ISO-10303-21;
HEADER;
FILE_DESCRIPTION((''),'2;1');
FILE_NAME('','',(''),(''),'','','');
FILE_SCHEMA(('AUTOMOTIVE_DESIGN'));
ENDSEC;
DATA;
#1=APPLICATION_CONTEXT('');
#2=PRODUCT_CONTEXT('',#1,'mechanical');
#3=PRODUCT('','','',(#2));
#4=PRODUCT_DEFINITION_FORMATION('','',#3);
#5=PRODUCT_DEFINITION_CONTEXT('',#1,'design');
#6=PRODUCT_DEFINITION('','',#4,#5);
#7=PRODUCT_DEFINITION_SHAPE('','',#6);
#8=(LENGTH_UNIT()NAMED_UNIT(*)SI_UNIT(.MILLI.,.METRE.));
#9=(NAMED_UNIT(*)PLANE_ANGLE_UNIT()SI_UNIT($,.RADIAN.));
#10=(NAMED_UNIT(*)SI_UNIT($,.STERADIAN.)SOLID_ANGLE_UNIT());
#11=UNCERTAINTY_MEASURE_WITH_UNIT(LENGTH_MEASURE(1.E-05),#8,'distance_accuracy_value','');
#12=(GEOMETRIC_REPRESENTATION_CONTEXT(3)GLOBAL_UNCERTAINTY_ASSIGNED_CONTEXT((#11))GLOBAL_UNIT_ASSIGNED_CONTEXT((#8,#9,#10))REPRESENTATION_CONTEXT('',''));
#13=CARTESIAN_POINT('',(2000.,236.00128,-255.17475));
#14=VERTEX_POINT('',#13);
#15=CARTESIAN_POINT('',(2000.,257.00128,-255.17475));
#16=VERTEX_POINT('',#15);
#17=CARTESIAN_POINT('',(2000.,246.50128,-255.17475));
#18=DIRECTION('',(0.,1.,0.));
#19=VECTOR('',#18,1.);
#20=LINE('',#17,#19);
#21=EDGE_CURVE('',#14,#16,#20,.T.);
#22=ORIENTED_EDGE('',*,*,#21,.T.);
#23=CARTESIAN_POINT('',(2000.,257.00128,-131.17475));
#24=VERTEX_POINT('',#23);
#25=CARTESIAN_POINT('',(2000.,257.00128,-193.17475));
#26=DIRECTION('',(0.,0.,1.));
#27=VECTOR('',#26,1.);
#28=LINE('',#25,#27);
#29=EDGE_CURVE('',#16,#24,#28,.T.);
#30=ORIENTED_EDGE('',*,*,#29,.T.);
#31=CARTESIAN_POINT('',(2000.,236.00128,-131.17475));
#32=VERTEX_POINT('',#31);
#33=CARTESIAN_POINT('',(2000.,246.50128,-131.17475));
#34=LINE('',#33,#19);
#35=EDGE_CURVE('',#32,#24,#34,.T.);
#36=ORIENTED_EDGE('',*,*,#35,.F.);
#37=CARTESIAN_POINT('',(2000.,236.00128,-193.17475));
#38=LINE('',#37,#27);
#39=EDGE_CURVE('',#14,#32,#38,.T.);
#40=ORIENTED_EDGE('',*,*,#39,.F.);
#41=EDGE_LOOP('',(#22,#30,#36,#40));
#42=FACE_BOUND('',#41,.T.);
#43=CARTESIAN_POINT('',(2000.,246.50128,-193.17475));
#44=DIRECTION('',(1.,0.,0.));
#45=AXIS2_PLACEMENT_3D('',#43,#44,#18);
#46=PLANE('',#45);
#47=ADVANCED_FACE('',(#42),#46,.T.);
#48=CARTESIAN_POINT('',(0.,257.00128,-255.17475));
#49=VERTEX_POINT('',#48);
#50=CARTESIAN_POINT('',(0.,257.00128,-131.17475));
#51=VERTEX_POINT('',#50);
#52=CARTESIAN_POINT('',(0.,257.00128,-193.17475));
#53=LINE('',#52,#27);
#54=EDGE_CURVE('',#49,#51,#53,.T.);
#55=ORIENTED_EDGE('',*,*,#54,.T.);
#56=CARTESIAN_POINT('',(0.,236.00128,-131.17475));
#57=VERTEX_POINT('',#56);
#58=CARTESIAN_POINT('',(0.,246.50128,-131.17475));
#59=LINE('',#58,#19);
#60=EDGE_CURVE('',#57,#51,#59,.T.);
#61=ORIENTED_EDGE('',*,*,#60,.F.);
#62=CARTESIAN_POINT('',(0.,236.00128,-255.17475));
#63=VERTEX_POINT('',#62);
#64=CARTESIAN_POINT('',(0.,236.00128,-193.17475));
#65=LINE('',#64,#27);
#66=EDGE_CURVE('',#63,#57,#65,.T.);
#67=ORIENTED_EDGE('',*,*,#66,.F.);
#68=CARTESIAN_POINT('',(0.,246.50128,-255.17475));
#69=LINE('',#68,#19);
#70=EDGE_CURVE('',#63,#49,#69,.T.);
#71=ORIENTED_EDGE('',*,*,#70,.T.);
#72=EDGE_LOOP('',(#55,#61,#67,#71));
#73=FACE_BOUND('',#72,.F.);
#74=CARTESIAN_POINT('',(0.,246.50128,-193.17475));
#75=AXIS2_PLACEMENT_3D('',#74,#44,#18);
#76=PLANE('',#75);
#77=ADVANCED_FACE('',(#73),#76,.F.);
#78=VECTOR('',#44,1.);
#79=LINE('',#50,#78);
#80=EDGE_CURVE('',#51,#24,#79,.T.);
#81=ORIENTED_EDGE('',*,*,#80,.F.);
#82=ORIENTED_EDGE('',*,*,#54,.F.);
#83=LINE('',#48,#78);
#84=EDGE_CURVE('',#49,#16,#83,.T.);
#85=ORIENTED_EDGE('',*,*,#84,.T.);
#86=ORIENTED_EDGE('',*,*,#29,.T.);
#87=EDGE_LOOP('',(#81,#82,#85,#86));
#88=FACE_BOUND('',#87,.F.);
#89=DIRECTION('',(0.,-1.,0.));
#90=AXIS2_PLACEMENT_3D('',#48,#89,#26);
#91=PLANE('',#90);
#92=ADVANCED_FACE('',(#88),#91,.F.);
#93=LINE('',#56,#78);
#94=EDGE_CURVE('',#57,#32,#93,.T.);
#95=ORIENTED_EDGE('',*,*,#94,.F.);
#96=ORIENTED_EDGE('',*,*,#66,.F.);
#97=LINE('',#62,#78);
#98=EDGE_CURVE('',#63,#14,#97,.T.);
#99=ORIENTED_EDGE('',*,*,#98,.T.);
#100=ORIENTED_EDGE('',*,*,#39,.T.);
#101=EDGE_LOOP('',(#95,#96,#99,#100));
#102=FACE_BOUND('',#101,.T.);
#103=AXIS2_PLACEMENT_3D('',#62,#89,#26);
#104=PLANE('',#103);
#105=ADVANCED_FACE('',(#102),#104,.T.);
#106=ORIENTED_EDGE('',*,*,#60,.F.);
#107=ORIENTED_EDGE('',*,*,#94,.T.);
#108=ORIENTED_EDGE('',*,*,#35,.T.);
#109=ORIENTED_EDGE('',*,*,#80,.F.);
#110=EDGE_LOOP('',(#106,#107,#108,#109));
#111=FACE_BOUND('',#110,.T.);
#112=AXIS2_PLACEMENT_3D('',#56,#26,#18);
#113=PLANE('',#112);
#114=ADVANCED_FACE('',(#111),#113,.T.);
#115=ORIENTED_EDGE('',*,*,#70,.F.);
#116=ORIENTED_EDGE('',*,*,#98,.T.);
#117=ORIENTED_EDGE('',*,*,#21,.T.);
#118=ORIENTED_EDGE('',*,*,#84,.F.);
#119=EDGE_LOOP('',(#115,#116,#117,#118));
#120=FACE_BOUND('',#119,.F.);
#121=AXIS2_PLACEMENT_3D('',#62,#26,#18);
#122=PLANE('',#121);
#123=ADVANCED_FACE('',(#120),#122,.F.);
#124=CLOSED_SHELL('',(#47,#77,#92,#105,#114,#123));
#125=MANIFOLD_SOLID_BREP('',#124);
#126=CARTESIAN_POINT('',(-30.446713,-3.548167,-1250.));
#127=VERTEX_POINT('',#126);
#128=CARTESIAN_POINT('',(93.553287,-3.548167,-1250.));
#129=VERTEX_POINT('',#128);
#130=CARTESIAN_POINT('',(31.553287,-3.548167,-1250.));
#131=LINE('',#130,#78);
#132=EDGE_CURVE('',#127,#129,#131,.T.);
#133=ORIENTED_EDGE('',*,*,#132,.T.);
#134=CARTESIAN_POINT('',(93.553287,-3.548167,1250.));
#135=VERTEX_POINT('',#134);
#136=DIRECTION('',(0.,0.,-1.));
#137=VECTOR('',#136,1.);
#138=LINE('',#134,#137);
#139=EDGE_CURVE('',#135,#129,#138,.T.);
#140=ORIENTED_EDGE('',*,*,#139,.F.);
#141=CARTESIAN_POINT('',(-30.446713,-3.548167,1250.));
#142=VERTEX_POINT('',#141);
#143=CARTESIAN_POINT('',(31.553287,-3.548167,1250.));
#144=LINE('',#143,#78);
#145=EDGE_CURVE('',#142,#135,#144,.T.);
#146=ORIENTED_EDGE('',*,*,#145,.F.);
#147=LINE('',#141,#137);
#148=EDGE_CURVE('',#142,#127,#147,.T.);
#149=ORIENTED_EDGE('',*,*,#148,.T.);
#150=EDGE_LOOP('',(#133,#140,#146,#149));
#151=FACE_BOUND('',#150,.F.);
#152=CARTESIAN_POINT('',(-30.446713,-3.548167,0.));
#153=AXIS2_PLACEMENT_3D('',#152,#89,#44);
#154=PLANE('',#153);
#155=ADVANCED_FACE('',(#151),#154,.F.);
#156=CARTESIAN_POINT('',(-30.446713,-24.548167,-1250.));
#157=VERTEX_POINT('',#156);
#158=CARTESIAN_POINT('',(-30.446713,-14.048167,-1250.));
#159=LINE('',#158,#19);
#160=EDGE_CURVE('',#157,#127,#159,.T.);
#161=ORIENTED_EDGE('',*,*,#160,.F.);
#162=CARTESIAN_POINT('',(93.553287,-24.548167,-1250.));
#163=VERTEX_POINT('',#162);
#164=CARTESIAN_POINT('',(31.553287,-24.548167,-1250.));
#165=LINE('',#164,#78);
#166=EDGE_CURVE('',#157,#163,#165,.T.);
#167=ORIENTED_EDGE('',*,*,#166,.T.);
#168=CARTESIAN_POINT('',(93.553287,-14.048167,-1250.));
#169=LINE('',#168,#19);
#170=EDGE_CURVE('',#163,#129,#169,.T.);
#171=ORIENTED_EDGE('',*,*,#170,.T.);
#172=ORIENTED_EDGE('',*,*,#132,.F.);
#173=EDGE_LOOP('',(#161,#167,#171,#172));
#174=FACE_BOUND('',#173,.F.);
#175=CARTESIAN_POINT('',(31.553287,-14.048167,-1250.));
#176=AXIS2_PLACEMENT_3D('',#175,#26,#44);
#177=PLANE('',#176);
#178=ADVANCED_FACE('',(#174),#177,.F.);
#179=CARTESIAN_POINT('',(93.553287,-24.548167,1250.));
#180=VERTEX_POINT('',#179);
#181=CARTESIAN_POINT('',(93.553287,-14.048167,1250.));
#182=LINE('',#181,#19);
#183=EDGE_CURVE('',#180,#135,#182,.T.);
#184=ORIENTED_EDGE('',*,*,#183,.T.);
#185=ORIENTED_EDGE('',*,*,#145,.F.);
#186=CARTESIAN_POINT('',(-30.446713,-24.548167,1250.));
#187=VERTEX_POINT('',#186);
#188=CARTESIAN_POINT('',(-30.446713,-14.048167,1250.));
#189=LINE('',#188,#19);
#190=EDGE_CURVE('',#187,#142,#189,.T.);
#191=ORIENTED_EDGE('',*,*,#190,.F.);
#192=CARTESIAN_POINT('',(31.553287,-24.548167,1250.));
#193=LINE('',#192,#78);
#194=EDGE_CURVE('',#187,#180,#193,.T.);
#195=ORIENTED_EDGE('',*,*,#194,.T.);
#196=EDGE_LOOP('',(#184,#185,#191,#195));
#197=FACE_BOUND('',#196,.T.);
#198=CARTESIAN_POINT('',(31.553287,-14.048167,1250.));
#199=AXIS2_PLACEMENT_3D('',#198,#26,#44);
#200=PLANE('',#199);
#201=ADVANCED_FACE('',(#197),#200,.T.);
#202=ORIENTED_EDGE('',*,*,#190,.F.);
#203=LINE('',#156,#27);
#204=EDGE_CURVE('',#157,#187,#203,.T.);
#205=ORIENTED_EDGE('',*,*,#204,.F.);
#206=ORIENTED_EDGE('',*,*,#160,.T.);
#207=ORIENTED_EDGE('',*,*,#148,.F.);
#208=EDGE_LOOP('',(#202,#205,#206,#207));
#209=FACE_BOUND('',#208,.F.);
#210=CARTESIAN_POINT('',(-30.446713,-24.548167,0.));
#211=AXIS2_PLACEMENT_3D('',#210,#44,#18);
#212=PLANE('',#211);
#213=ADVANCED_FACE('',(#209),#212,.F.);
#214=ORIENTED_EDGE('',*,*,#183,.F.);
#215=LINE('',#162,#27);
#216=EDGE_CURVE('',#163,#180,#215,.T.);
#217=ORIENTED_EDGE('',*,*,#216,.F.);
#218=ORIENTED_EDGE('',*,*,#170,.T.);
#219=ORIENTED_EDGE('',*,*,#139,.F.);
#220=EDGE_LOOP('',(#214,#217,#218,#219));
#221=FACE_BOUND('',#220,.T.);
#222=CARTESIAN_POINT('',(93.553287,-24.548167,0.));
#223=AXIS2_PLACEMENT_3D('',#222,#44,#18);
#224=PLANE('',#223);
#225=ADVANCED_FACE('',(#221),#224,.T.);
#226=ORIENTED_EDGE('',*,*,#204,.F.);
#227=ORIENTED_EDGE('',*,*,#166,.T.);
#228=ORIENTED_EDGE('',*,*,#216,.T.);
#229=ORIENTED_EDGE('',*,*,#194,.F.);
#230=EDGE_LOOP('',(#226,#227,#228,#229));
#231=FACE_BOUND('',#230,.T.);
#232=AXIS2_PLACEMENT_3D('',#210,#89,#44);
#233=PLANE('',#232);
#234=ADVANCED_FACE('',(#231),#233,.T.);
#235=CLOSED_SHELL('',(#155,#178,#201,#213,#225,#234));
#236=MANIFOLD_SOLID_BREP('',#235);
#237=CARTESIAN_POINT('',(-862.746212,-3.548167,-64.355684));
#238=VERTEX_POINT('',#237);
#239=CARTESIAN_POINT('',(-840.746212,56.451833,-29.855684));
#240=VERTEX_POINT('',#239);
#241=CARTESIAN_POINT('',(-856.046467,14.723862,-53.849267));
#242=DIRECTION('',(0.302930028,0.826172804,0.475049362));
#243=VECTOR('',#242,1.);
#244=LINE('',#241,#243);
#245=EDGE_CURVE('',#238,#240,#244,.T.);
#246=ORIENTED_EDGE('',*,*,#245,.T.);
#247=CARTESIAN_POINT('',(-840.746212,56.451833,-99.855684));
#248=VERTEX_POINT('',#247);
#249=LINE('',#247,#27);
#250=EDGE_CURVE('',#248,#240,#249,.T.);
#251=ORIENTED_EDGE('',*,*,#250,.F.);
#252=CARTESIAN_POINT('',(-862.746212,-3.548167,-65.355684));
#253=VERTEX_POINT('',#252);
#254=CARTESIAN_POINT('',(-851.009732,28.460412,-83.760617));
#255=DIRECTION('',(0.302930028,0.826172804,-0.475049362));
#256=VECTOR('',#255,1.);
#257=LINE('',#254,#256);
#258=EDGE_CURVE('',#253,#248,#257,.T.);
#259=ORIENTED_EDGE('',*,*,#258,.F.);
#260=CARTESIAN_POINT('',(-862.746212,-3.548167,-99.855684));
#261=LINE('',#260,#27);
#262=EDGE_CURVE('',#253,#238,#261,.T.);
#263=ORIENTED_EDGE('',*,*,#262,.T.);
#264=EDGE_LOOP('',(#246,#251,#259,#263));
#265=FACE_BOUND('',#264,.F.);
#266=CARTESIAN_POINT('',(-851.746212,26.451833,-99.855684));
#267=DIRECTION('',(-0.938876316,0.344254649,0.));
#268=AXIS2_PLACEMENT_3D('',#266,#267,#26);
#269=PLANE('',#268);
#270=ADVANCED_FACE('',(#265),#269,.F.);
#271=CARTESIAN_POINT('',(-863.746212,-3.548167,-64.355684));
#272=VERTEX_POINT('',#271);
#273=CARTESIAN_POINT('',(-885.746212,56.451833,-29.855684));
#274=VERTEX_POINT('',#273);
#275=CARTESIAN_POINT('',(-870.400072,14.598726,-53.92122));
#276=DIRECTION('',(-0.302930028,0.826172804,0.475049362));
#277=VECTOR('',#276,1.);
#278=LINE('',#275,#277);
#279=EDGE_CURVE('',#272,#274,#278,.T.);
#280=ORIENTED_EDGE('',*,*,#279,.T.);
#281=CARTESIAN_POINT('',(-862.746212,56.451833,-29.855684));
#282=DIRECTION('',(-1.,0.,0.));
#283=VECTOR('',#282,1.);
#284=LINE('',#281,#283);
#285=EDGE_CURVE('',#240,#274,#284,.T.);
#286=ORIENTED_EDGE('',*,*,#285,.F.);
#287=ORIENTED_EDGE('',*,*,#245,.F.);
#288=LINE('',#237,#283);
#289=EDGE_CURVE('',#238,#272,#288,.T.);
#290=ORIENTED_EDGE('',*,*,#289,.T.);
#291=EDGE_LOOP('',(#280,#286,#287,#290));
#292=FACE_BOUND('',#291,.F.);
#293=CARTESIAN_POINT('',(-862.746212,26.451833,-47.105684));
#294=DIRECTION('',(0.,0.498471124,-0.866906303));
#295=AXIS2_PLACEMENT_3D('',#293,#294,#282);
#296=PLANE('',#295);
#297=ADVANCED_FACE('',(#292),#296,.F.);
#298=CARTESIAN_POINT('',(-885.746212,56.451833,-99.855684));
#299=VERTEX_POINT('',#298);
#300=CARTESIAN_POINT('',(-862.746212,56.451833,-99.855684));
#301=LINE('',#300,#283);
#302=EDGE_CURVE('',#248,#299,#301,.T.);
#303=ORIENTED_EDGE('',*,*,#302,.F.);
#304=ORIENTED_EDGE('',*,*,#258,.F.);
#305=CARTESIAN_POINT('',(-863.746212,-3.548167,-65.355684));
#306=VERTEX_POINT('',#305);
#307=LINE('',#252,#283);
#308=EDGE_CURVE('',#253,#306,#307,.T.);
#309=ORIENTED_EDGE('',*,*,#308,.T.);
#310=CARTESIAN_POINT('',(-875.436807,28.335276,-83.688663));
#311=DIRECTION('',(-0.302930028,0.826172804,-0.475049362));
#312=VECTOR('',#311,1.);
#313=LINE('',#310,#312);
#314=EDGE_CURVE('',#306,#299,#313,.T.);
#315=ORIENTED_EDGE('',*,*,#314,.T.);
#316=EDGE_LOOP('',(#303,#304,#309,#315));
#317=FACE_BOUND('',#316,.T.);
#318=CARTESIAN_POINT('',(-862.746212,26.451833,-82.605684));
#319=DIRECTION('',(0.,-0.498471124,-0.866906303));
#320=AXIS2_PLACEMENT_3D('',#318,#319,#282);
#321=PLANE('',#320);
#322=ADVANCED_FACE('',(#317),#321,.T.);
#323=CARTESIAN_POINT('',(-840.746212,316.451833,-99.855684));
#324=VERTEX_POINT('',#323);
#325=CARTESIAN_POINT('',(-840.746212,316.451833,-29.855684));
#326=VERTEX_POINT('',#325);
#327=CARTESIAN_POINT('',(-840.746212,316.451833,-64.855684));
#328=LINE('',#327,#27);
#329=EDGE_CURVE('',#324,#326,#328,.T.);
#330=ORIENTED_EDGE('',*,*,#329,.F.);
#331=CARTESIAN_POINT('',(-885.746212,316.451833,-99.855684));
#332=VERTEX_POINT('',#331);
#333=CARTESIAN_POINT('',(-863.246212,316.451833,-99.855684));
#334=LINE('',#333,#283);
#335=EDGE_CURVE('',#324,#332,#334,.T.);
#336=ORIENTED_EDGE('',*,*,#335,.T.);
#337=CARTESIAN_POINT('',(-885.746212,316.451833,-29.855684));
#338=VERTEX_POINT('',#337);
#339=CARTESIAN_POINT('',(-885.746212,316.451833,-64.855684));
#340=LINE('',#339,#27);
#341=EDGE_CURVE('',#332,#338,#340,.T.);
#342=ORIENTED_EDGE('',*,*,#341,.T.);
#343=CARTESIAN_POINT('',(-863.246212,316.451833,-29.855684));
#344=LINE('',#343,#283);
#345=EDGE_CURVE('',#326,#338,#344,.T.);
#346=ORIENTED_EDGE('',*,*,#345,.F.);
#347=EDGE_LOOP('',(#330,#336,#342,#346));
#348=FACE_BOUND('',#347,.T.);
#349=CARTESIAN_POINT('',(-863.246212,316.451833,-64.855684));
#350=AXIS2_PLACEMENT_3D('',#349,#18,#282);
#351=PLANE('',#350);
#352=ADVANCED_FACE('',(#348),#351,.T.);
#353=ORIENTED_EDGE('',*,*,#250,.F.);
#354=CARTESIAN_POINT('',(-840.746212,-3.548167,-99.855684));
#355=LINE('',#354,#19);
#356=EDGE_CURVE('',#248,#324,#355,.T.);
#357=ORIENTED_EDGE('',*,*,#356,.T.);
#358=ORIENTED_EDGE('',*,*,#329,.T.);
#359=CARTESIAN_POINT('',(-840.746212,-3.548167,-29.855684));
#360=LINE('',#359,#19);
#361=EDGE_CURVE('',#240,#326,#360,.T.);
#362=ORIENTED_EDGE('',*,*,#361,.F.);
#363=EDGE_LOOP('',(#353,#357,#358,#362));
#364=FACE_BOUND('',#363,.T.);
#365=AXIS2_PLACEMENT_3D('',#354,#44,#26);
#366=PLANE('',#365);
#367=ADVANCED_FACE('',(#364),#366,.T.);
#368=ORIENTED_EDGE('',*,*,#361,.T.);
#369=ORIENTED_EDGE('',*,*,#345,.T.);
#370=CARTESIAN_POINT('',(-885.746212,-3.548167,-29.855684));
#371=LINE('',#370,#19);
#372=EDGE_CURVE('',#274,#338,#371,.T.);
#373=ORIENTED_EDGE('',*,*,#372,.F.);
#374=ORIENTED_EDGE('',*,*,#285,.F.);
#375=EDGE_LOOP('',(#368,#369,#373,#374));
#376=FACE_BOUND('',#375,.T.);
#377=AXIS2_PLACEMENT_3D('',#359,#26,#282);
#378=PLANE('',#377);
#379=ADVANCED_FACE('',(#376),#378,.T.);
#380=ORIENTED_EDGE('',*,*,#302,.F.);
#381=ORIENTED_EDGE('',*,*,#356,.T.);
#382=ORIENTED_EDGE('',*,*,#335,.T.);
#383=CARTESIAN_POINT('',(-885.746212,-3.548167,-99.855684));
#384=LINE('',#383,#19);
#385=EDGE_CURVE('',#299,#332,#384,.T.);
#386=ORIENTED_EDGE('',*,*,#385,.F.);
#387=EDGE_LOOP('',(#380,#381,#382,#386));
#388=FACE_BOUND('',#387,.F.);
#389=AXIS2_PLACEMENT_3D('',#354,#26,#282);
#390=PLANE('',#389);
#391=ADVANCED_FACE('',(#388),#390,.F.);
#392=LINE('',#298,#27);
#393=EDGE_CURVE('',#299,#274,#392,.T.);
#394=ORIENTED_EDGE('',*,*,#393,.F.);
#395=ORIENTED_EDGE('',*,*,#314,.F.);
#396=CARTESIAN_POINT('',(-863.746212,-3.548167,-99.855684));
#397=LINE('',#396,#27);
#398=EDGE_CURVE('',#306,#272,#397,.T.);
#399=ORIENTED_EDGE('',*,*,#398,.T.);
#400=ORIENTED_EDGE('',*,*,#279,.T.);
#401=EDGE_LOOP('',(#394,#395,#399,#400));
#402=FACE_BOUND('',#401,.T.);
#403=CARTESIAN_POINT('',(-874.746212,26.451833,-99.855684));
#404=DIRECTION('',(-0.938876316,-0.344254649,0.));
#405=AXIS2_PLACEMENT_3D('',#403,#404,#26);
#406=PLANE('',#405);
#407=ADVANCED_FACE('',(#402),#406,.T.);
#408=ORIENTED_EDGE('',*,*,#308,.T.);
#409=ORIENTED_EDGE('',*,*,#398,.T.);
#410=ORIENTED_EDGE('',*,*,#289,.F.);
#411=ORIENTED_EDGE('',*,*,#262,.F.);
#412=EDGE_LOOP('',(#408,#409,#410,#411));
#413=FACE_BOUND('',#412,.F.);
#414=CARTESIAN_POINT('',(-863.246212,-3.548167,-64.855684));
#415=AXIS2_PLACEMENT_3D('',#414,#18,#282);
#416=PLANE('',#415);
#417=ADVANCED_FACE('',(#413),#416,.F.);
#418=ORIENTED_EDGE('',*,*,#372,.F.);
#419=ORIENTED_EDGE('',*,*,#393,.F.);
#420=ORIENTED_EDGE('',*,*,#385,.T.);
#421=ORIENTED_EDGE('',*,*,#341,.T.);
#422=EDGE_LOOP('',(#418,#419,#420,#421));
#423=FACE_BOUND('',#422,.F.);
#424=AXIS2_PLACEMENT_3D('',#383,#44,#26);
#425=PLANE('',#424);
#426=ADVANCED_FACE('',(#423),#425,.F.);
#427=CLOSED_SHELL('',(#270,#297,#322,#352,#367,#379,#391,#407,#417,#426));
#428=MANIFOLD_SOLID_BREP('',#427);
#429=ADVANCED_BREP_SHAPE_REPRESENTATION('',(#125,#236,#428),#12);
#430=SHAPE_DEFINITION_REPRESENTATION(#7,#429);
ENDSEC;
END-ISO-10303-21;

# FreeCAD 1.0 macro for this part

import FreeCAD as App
import Part
import Sketcher


def edges_at(feature, points):
    """Names of the edges that pass closest to the given points."""
    edges = feature.Shape.Edges
    near = lambda p: min(range(len(edges)), key=lambda i: edges[i].distToShape(Part.Vertex(*p))[0])
    return sorted({f"Edge{near(p) + 1}" for p in points})


def add_polygon(sketch, points):
    """Adds a closed chain of lines whose ends are joined by coincident constraints."""
    first, n = sketch.GeometryCount, len(points)
    for a, b in zip(points, points[1:] + points[:1]):
        sketch.addGeometry(Part.LineSegment(App.Vector(*a, 0), App.Vector(*b, 0)), False)
    for i in range(n):
        sketch.addConstraint(Sketcher.Constraint("Coincident", first + i, 2, first + (i + 1) % n, 1))

doc = App.newDocument("Part")
body = doc.addObject("PartDesign::Body", "Body")

# Sketch on XY plane
sketch1 = body.newObject("Sketcher::SketchObject", "Sketch")
sketch1.AttachmentSupport = (doc.getObject("XY_Plane"), [""])
sketch1.MapMode = "FlatFace"
add_polygon(sketch1, [(-30, -4), (-30, -25), (94, -25), (94, -4)])  # lines 0-3
sketch1.addConstraint([
    Sketcher.Constraint("Vertical", 0),
    Sketcher.Constraint("Horizontal", 1),
    Sketcher.Constraint("Vertical", 2),
    Sketcher.Constraint("Horizontal", 3),
    Sketcher.Constraint("DistanceX", 1, 1, 1, 2, 124.0),
    Sketcher.Constraint("DistanceY", 0, 2, 0, 1, 21.0),
    Sketcher.Constraint("DistanceX", 0, 2, -1, 1, 30.446713),
    Sketcher.Constraint("DistanceY", 0, 2, -1, 1, 24.548167),
])
pad1 = body.newObject("PartDesign::Pad", "Pad")
pad1.Profile = sketch1
pad1.Length = 2500
pad1.Midplane = True
body2 = doc.addObject("PartDesign::Body", "Body001")

# Sketch on XZ plane
sketch2 = body2.newObject("Sketcher::SketchObject", "Sketch001")
sketch2.AttachmentSupport = (doc.getObject("XZ_Plane001"), [""])
sketch2.MapMode = "FlatFace"
sketch2.AttachmentOffset = App.Placement(App.Vector(0, 0, 3.548167), App.Rotation())
add_polygon(sketch2, [(-841, -30), (-841, -100), (-886, -100), (-886, -30)])  # lines 0-3
sketch2.addConstraint([
    Sketcher.Constraint("Vertical", 0),
    Sketcher.Constraint("Horizontal", 1),
    Sketcher.Constraint("Vertical", 2),
    Sketcher.Constraint("Horizontal", 3),
    Sketcher.Constraint("DistanceX", 1, 2, 1, 1, 45.0),
    Sketcher.Constraint("DistanceY", 0, 2, 0, 1, 70.0),
    Sketcher.Constraint("DistanceX", 0, 2, -1, 1, 840.746212),
    Sketcher.Constraint("DistanceY", 0, 2, -1, 1, 99.855684),
])
pad2 = body2.newObject("PartDesign::Pad", "Pad001")
pad2.Profile = sketch2
pad2.Length = 320
pad2.Reversed = True
doc.recompute()

chamfer = body2.newObject("PartDesign::Chamfer", "Chamfer")
chamfer.Base = (pad2, edges_at(pad2, [(-840.746, -3.548, -64.856), (-885.746, -3.548, -64.856)]))
chamfer.ChamferType = "Two distances"
chamfer.Size = 22
chamfer.Size2 = 60
chamfer.FlipDirection = True
doc.recompute()

chamfer2 = body2.newObject("PartDesign::Chamfer", "Chamfer001")
chamfer2.Base = (chamfer, edges_at(chamfer, [(-863.246, -3.548, -99.856), (-863.246, -3.548, -29.856)]))
chamfer2.ChamferType = "Two distances"
chamfer2.Size = 34.5
chamfer2.Size2 = 60
chamfer2.FlipDirection = True
body3 = doc.addObject("PartDesign::Body", "Body002")

# Sketch on YZ plane
sketch3 = body3.newObject("Sketcher::SketchObject", "Sketch002")
sketch3.AttachmentSupport = (doc.getObject("YZ_Plane002"), [""])
sketch3.MapMode = "FlatFace"
add_polygon(sketch3, [(236, -131), (236, -255), (257, -255), (257, -131)])  # lines 0-3
sketch3.addConstraint([
    Sketcher.Constraint("Vertical", 0),
    Sketcher.Constraint("Horizontal", 1),
    Sketcher.Constraint("Vertical", 2),
    Sketcher.Constraint("Horizontal", 3),
    Sketcher.Constraint("DistanceX", 1, 1, 1, 2, 21.0),
    Sketcher.Constraint("DistanceY", 0, 2, 0, 1, 124.0),
    Sketcher.Constraint("DistanceX", -1, 1, 0, 2, 236.00128),
    Sketcher.Constraint("DistanceY", 0, 2, -1, 1, 255.17475),
])
pad3 = body3.newObject("PartDesign::Pad", "Pad002")
pad3.Profile = sketch3
pad3.Length = 2000

doc.recompute()
